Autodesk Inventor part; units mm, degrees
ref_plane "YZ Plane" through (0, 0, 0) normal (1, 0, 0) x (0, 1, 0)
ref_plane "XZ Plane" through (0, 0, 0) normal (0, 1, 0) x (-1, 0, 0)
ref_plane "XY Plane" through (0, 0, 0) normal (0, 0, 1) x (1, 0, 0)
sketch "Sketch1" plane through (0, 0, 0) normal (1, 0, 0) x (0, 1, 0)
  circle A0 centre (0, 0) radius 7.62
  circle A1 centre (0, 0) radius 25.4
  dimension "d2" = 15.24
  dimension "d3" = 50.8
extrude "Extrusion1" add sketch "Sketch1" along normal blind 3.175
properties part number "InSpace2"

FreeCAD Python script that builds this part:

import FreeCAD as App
import Part
import Sketcher
Q = App.Units.Quantity

doc = App.newDocument("Part")
body = doc.addObject("PartDesign::Body", "Body")

# Sketch on YZ plane
sketch1 = doc.addObject("Sketcher::SketchObject", "Sketch")
body.addObject(sketch1)
sketch1.AttachmentSupport = (doc.YZ_Plane, [""])
sketch1.MapMode = "FlatFace"
sketch1.addGeometry(Part.Circle(App.Vector(0, 0, 0), App.Vector(0, 0, 1), 25), False)
sketch1.addGeometry(Part.Circle(App.Vector(0, 0, 0), App.Vector(0, 0, 1), 8), False)
sketch1.addConstraint(Sketcher.Constraint("Coincident", 0, 3, -1, 1))
sketch1.addConstraint(Sketcher.Constraint("Coincident", 1, 3, -1, 1))
sketch1.addConstraint(Sketcher.Constraint("Diameter", 0, Q("2 in")))
sketch1.addConstraint(Sketcher.Constraint("Diameter", 1, Q("0.6 in")))
pad1 = doc.addObject("PartDesign::Pad", "Pad")
body.addObject(pad1)
pad1.Profile = sketch1
pad1.Length = Q("0.125 in")

doc.recompute()
